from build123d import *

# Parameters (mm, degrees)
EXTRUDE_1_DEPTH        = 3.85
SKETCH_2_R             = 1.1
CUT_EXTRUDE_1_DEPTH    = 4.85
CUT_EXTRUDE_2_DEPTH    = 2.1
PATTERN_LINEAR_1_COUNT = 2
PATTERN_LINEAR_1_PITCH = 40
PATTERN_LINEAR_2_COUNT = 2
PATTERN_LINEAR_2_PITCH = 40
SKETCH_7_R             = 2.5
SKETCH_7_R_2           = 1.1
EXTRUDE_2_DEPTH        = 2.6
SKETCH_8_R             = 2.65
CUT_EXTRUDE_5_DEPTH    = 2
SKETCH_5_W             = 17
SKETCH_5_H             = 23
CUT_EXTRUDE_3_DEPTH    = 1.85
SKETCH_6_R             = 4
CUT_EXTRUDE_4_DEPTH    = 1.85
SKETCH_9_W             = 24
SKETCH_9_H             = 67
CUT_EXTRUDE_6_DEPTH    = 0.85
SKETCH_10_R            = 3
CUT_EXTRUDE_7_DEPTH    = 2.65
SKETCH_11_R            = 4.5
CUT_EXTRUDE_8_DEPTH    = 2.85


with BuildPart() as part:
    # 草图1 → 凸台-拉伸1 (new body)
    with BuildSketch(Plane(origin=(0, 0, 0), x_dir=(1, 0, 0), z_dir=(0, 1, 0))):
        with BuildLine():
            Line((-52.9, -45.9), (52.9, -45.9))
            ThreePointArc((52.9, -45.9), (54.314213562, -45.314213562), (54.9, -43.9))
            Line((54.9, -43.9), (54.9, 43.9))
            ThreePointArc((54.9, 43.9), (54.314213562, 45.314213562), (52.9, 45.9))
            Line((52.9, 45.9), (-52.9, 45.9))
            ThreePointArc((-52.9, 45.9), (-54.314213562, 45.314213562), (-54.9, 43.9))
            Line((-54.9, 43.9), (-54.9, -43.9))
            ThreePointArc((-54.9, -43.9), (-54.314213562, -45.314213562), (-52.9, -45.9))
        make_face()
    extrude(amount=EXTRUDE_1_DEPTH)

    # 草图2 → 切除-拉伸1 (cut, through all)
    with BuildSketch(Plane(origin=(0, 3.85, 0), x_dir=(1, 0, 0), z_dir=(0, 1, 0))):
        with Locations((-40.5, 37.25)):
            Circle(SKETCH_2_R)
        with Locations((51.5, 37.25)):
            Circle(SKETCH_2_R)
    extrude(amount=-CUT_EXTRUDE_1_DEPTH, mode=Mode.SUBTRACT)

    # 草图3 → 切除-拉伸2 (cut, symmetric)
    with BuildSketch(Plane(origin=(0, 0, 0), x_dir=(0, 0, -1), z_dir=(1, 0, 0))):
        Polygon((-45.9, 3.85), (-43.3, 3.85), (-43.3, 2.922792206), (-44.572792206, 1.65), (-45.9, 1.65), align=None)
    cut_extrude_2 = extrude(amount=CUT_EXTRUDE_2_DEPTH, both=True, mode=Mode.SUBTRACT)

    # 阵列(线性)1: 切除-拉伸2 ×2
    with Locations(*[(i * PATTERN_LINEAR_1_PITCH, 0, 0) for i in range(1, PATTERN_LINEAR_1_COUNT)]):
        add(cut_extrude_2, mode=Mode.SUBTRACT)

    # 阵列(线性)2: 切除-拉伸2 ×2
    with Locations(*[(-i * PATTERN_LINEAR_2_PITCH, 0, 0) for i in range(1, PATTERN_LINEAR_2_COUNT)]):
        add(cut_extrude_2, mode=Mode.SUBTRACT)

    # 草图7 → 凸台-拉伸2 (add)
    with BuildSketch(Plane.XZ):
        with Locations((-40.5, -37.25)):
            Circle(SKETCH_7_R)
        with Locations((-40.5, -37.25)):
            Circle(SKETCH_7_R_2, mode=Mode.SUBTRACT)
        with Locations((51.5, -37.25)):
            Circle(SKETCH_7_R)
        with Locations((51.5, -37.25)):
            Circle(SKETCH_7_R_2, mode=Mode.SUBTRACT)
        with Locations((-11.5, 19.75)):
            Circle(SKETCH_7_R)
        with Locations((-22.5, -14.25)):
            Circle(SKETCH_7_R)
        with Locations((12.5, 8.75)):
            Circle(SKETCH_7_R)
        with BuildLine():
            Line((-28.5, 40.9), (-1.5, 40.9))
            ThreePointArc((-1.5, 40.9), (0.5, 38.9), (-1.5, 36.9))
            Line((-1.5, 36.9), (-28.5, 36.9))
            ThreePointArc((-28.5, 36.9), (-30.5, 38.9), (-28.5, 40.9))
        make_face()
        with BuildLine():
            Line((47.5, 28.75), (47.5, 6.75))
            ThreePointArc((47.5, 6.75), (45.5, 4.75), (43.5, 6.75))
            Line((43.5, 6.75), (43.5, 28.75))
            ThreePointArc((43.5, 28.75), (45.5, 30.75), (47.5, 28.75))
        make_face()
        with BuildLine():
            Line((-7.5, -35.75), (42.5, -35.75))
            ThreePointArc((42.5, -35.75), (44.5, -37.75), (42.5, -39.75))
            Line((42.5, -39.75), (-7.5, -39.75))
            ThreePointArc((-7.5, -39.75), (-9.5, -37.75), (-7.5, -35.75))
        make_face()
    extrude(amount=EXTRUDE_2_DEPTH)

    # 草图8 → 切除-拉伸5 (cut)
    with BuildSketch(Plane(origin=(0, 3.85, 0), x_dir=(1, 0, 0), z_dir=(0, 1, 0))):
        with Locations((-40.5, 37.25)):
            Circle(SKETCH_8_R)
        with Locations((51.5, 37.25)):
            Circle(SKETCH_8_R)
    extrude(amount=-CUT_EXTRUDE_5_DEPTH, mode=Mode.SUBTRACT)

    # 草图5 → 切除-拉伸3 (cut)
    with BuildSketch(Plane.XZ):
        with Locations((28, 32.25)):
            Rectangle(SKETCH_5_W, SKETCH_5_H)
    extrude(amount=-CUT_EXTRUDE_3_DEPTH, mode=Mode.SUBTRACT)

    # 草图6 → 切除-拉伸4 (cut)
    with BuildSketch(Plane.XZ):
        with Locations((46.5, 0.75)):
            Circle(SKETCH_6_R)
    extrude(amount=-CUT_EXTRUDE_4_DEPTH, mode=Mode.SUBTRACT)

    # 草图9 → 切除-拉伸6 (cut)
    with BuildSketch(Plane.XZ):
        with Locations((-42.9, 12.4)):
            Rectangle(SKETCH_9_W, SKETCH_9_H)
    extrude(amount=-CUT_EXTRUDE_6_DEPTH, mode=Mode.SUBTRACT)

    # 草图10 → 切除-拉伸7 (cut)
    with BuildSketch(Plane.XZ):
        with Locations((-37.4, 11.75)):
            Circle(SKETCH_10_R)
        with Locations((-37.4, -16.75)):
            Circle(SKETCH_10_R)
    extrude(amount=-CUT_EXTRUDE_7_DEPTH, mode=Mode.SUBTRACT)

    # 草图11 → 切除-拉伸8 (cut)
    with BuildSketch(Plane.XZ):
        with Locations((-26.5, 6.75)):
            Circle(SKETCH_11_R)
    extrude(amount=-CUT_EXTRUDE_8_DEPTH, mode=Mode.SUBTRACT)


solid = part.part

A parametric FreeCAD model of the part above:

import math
import FreeCAD as App
import Part
import Sketcher
from FreeCAD import Vector
Q = App.Units.Quantity

doc = App.newDocument("Part")
body = doc.addObject("PartDesign::Body", "Body")

# Sketch on XZ plane
sketch1 = body.newObject("Sketcher::SketchObject", "Sketch")
sketch1.AttachmentSupport = (doc.getObject("XZ_Plane"), [""])
sketch1.MapMode = "FlatFace"
sketch1.addGeometry([
    Part.LineSegment(Vector(-52.9, 45.9, 0), Vector(52.9, 45.9, 0)),  # 0
    Part.ArcOfCircle(Part.Circle(Vector(52.9, 43.9, 0), Vector(0, 0, 1), 2), math.radians(0), math.radians(90)),  # 1
    Part.LineSegment(Vector(54.9, 43.9, 0), Vector(54.9, -43.9, 0)),  # 2
    Part.ArcOfCircle(Part.Circle(Vector(52.9, -43.9, 0), Vector(0, 0, 1), 2), math.radians(-90), math.radians(0)),  # 3
    Part.LineSegment(Vector(52.9, -45.9, 0), Vector(-52.9, -45.9, 0)),  # 4
    Part.ArcOfCircle(Part.Circle(Vector(-52.9, -43.9, 0), Vector(0, 0, 1), 2), math.radians(-180), math.radians(-90)),  # 5
    Part.LineSegment(Vector(-54.9, -43.9, 0), Vector(-54.9, 43.9, 0)),  # 6
    Part.ArcOfCircle(Part.Circle(Vector(-52.9, 43.9, 0), Vector(0, 0, 1), 2), math.radians(90), math.radians(180)),  # 7
], False)
sketch1.addConstraint([
    Sketcher.Constraint("Tangent", 0, 2, 1, 2),
    Sketcher.Constraint("Tangent", 1, 1, 2, 1),
    Sketcher.Constraint("Tangent", 2, 2, 3, 2),
    Sketcher.Constraint("Tangent", 3, 1, 4, 1),
    Sketcher.Constraint("Tangent", 4, 2, 5, 2),
    Sketcher.Constraint("Tangent", 5, 1, 6, 1),
    Sketcher.Constraint("Tangent", 6, 2, 7, 2),
    Sketcher.Constraint("Tangent", 7, 1, 0, 1),
    Sketcher.Constraint("Horizontal", 0),
    Sketcher.Constraint("Vertical", 2),
    Sketcher.Constraint("Horizontal", 4),
    Sketcher.Constraint("Vertical", 6),
    Sketcher.Constraint("Equal", 1, 3),
    Sketcher.Constraint("Equal", 3, 5),
    Sketcher.Constraint("Equal", 5, 7),
    Sketcher.Constraint("Symmetric", 1, 3, 5, 3, -1, 1),
    Sketcher.Constraint("Radius", 1, Q("2 mm")),
    Sketcher.Constraint("DistanceX", 0, 1, 0, 2, Q("105.8 mm")),
    Sketcher.Constraint("DistanceY", 2, 2, 2, 1, Q("87.8 mm")),
])
pad1 = body.newObject("PartDesign::Pad", "Pad")
pad1.Profile = sketch1
pad1.Length = 3.85
pad1.Reversed = True

# Sketch on XZ plane
sketch2 = body.newObject("Sketcher::SketchObject", "Sketch001")
sketch2.AttachmentSupport = (doc.getObject("XZ_Plane"), [""])
sketch2.MapMode = "FlatFace"
sketch2.AttachmentOffset = App.Placement(Vector(0, 0, -3.85), App.Rotation())
sketch2.addGeometry([
    Part.Circle(Vector(-40.5, -37.2, 0), Vector(0, 0, 1), 1.1),
    Part.Circle(Vector(51.5, -37.2, 0), Vector(0, 0, 1), 1.1),
], False)
sketch2.addConstraint([
    Sketcher.Constraint("Equal", 0, 1),
    Sketcher.Constraint("Horizontal", 0, 3, 1, 3),
    Sketcher.Constraint("Diameter", 0, Q("2.2 mm")),
    Sketcher.Constraint("DistanceX", 0, 3, 1, 3, Q("92 mm")),
    Sketcher.Constraint("DistanceX", 0, 3, -1, 1, Q("40.5 mm")),
    Sketcher.Constraint("DistanceY", 0, 3, -1, 1, Q("37.25 mm")),
])
pocket1 = body.newObject("PartDesign::Pocket", "Pocket")
pocket1.Profile = sketch2
pocket1.Type = "ThroughAll"
pocket1.Reversed = True

# Sketch on YZ plane
sketch3 = body.newObject("Sketcher::SketchObject", "Sketch002")
sketch3.AttachmentSupport = (doc.getObject("YZ_Plane"), [""])
sketch3.MapMode = "FlatFace"
sketch3.addGeometry([
    Part.LineSegment(Vector(3.9, 43.3, 0), Vector(3.9, 45.9, 0)),  # 0
    Part.LineSegment(Vector(3.9, 45.9, 0), Vector(1.6, 45.9, 0)),  # 1
    Part.LineSegment(Vector(1.6, 45.9, 0), Vector(1.6, 44.6, 0)),  # 2
    Part.LineSegment(Vector(1.6, 44.6, 0), Vector(2.9, 43.3, 0)),  # 3
    Part.LineSegment(Vector(2.9, 43.3, 0), Vector(3.9, 43.3, 0)),  # 4
], False)
sketch3.addConstraint([
    Sketcher.Constraint("Coincident", 0, 2, 1, 1),
    Sketcher.Constraint("Coincident", 1, 2, 2, 1),
    Sketcher.Constraint("Coincident", 2, 2, 3, 1),
    Sketcher.Constraint("Coincident", 3, 2, 4, 1),
    Sketcher.Constraint("Coincident", 4, 2, 0, 1),
    Sketcher.Constraint("Vertical", 0),
    Sketcher.Constraint("Horizontal", 1),
    Sketcher.Constraint("Vertical", 2),
    Sketcher.Constraint("Horizontal", 4),
    Sketcher.Constraint("Angle", 3, Q("-45 deg")),
    Sketcher.Constraint("DistanceX", 1, 2, 1, 1, Q("2.2 mm")),
    Sketcher.Constraint("DistanceY", 0, 1, 0, 2, Q("2.6 mm")),
    Sketcher.Constraint("Distance", 3, Q("1.8 mm")),
    Sketcher.Constraint("DistanceY", -1, 1, 0, 2, Q("45.9 mm")),
    Sketcher.Constraint("DistanceX", -1, 1, 0, 2, Q("3.85 mm")),
])
pocket2 = body.newObject("PartDesign::Pocket", "Pocket001")
pocket2.Profile = sketch3
pocket2.Length = 4.2
pocket2.Midplane = True
doc.recompute()

linearpattern = body.newObject("PartDesign::LinearPattern", "LinearPattern")
linearpattern.Originals = [pocket2]
linearpattern.Direction = (doc.getObject("X_Axis"), [""])
linearpattern.Mode = "offset"
linearpattern.Offset = 40
linearpattern.Occurrences = 2
body.Tip = linearpattern
doc.recompute()

linearpattern2 = body.newObject("PartDesign::LinearPattern", "LinearPattern001")
linearpattern2.Originals = [pocket2]
linearpattern2.Direction = (doc.getObject("X_Axis"), [""])
linearpattern2.Mode = "offset"
linearpattern2.Offset = 40
linearpattern2.Occurrences = 2
linearpattern2.Reversed = True
body.Tip = linearpattern2

# Sketch on XZ plane
sketch4 = body.newObject("Sketcher::SketchObject", "Sketch003")
sketch4.AttachmentSupport = (doc.getObject("XZ_Plane"), [""])
sketch4.MapMode = "FlatFace"
sketch4.addGeometry([
    Part.Circle(Vector(-40.5, -37.2, 0), Vector(0, 0, 1), 2.5),  # 0
    Part.Circle(Vector(-40.5, -37.2, 0), Vector(0, 0, 1), 1.1),  # 1
    Part.Circle(Vector(51.5, -37.2, 0), Vector(0, 0, 1), 2.5),  # 2
    Part.Circle(Vector(51.5, -37.2, 0), Vector(0, 0, 1), 1.1),  # 3
    Part.Circle(Vector(-11.5, 19.8, 0), Vector(0, 0, 1), 2.5),  # 4
    Part.Circle(Vector(-22.5, -14.2, 0), Vector(0, 0, 1), 2.5),  # 5
    Part.Circle(Vector(12.5, 8.8, 0), Vector(0, 0, 1), 2.5),  # 6
    Part.LineSegment(Vector(-1.5, 40.9, 0), Vector(-28.5, 40.9, 0)),  # 7
    Part.ArcOfCircle(Part.Circle(Vector(-28.5, 38.9, 0), Vector(0, 0, 1), 2), math.radians(90), math.radians(270)),  # 8
    Part.LineSegment(Vector(-28.5, 36.9, 0), Vector(-1.5, 36.9, 0)),  # 9
    Part.ArcOfCircle(Part.Circle(Vector(-1.5, 38.9, 0), Vector(0, 0, 1), 2), math.radians(-90), math.radians(90)),  # 10
    Part.LineSegment(Vector(47.5, 6.8, 0), Vector(47.5, 28.8, 0)),  # 11
    Part.ArcOfCircle(Part.Circle(Vector(45.5, 28.8, 0), Vector(0, 0, 1), 2), math.radians(0), math.radians(180)),  # 12
    Part.LineSegment(Vector(43.5, 28.8, 0), Vector(43.5, 6.8, 0)),  # 13
    Part.ArcOfCircle(Part.Circle(Vector(45.5, 6.8, 0), Vector(0, 0, 1), 2), math.radians(180), math.radians(360)),  # 14
    Part.LineSegment(Vector(42.5, -35.8, 0), Vector(-7.5, -35.8, 0)),  # 15
    Part.ArcOfCircle(Part.Circle(Vector(-7.5, -37.8, 0), Vector(0, 0, 1), 2), math.radians(90), math.radians(270)),  # 16
    Part.LineSegment(Vector(-7.5, -39.8, 0), Vector(42.5, -39.8, 0)),  # 17
    Part.ArcOfCircle(Part.Circle(Vector(42.5, -37.8, 0), Vector(0, 0, 1), 2), math.radians(-90), math.radians(90)),  # 18
], False)
sketch4.addConstraint([
    Sketcher.Constraint("Tangent", 7, 2, 8, 1),
    Sketcher.Constraint("Tangent", 8, 2, 9, 1),
    Sketcher.Constraint("Tangent", 9, 2, 10, 1),
    Sketcher.Constraint("Tangent", 10, 2, 7, 1),
    Sketcher.Constraint("Tangent", 11, 2, 12, 1),
    Sketcher.Constraint("Tangent", 12, 2, 13, 1),
    Sketcher.Constraint("Tangent", 13, 2, 14, 1),
    Sketcher.Constraint("Tangent", 14, 2, 11, 1),
    Sketcher.Constraint("Tangent", 15, 2, 16, 1),
    Sketcher.Constraint("Tangent", 16, 2, 17, 1),
    Sketcher.Constraint("Tangent", 17, 2, 18, 1),
    Sketcher.Constraint("Tangent", 18, 2, 15, 1),
    Sketcher.Constraint("Horizontal", 7),
    Sketcher.Constraint("Horizontal", 9),
    Sketcher.Constraint("Vertical", 11),
    Sketcher.Constraint("Vertical", 13),
    Sketcher.Constraint("Horizontal", 15),
    Sketcher.Constraint("Horizontal", 17),
    Sketcher.Constraint("Coincident", 1, 3, 0, 3),
    Sketcher.Constraint("Coincident", 3, 3, 2, 3),
    Sketcher.Constraint("Equal", 0, 2),
    Sketcher.Constraint("Equal", 1, 3),
    Sketcher.Constraint("Equal", 2, 4),
    Sketcher.Constraint("Equal", 4, 5),
    Sketcher.Constraint("Equal", 5, 6),
    Sketcher.Constraint("Equal", 10, 12),
    Sketcher.Constraint("Equal", 14, 16),
    Sketcher.Constraint("Horizontal", 1, 3, 2, 3),
    Sketcher.Constraint("Diameter", 0, Q("5 mm")),
    Sketcher.Constraint("Radius", 8, Q("2 mm")),
    Sketcher.Constraint("Diameter", 1, Q("2.2 mm")),
    Sketcher.Constraint("DistanceX", 7, 2, 7, 1, Q("27 mm")),
    Sketcher.Constraint("DistanceX", 15, 2, 15, 1, Q("50 mm")),
    Sketcher.Constraint("DistanceY", 11, 1, 11, 2, Q("22 mm")),
    Sketcher.Constraint("DistanceX", 0, 3, 2, 3, Q("92 mm")),
    Sketcher.Constraint("DistanceX", 0, 3, 4, 3, Q("29 mm")),
    Sketcher.Constraint("DistanceY", 0, 3, 4, 3, Q("57 mm")),
    Sketcher.Constraint("DistanceX", 0, 3, 5, 3, Q("18 mm")),
    Sketcher.Constraint("DistanceY", 0, 3, 5, 3, Q("23 mm")),
    Sketcher.Constraint("DistanceX", 4, 3, 6, 3, Q("24 mm")),
    Sketcher.Constraint("DistanceY", 6, 3, 4, 3, Q("11 mm")),
    Sketcher.Constraint("DistanceX", 8, 3, 4, 3, Q("17 mm")),
    Sketcher.Constraint("DistanceX", 6, 3, 12, 3, Q("33 mm")),
    Sketcher.Constraint("DistanceY", 6, 3, 12, 3, Q("20 mm")),
    Sketcher.Constraint("DistanceX", 5, 3, 16, 3, Q("15 mm")),
    Sketcher.Constraint("DistanceX", 0, 3, -1, 1, Q("40.5 mm")),
    Sketcher.Constraint("DistanceY", -1, 1, 8, 3, Q("38.9 mm")),
    Sketcher.Constraint("DistanceY", 16, 3, 5, 3, Q("23.5 mm")),
    Sketcher.Constraint("DistanceY", 0, 3, -1, 1, Q("37.25 mm")),
])
pad2 = body.newObject("PartDesign::Pad", "Pad001")
pad2.Profile = sketch4
pad2.Length = 2.6

# Sketch on XZ plane
sketch5 = body.newObject("Sketcher::SketchObject", "Sketch004")
sketch5.AttachmentSupport = (doc.getObject("XZ_Plane"), [""])
sketch5.MapMode = "FlatFace"
sketch5.AttachmentOffset = App.Placement(Vector(0, 0, -3.85), App.Rotation())
sketch5.addGeometry([
    Part.Circle(Vector(-40.5, -37.2, 0), Vector(0, 0, 1), 2.6),
    Part.Circle(Vector(51.5, -37.2, 0), Vector(0, 0, 1), 2.6),
], False)
sketch5.addConstraint([
    Sketcher.Constraint("Equal", 0, 1),
    Sketcher.Constraint("Horizontal", 0, 3, 1, 3),
    Sketcher.Constraint("Diameter", 0, Q("5.3 mm")),
    Sketcher.Constraint("DistanceX", 0, 3, 1, 3, Q("92 mm")),
    Sketcher.Constraint("DistanceX", 0, 3, -1, 1, Q("40.5 mm")),
    Sketcher.Constraint("DistanceY", 0, 3, -1, 1, Q("37.25 mm")),
])
pocket3 = body.newObject("PartDesign::Pocket", "Pocket002")
pocket3.Profile = sketch5
pocket3.Length = 2
pocket3.Reversed = True

# Sketch on XZ plane
sketch6 = body.newObject("Sketcher::SketchObject", "Sketch005")
sketch6.AttachmentSupport = (doc.getObject("XZ_Plane"), [""])
sketch6.MapMode = "FlatFace"
sketch6.addGeometry([
    Part.LineSegment(Vector(20, 44, 0), Vector(20, 21, 0)),
    Part.LineSegment(Vector(20, 21, 0), Vector(36, 21, 0)),
    Part.LineSegment(Vector(36, 21, 0), Vector(36, 44, 0)),
    Part.LineSegment(Vector(36, 44, 0), Vector(20, 44, 0)),
], False)
sketch6.addConstraint([
    Sketcher.Constraint("Coincident", 0, 2, 1, 1),
    Sketcher.Constraint("Coincident", 1, 2, 2, 1),
    Sketcher.Constraint("Coincident", 2, 2, 3, 1),
    Sketcher.Constraint("Coincident", 3, 2, 0, 1),
    Sketcher.Constraint("Vertical", 0),
    Sketcher.Constraint("Horizontal", 1),
    Sketcher.Constraint("Vertical", 2),
    Sketcher.Constraint("Horizontal", 3),
    Sketcher.Constraint("DistanceX", 1, 1, 1, 2, Q("17 mm")),
    Sketcher.Constraint("DistanceY", 0, 2, 0, 1, Q("23 mm")),
    Sketcher.Constraint("DistanceX", -1, 1, 0, 2, Q("19.5 mm")),
    Sketcher.Constraint("DistanceY", -1, 1, 0, 2, Q("20.75 mm")),
])
pocket4 = body.newObject("PartDesign::Pocket", "Pocket003")
pocket4.Profile = sketch6
pocket4.Length = 1.85

# Sketch on XZ plane
sketch7 = body.newObject("Sketcher::SketchObject", "Sketch006")
sketch7.AttachmentSupport = (doc.getObject("XZ_Plane"), [""])
sketch7.MapMode = "FlatFace"
sketch7.addGeometry(Part.Circle(Vector(46.5, 0.8, 0), Vector(0, 0, 1), 4), False)
sketch7.addConstraint([
    Sketcher.Constraint("Diameter", 0, Q("8 mm")),
    Sketcher.Constraint("DistanceX", -1, 1, 0, 3, Q("46.5 mm")),
    Sketcher.Constraint("DistanceY", -1, 1, 0, 3, Q("0.75 mm")),
])
pocket5 = body.newObject("PartDesign::Pocket", "Pocket004")
pocket5.Profile = sketch7
pocket5.Length = 1.85

# Sketch on XZ plane
sketch8 = body.newObject("Sketcher::SketchObject", "Sketch007")
sketch8.AttachmentSupport = (doc.getObject("XZ_Plane"), [""])
sketch8.MapMode = "FlatFace"
sketch8.addGeometry([
    Part.LineSegment(Vector(-55, 46, 0), Vector(-55, -21, 0)),
    Part.LineSegment(Vector(-55, -21, 0), Vector(-31, -21, 0)),
    Part.LineSegment(Vector(-31, -21, 0), Vector(-31, 46, 0)),
    Part.LineSegment(Vector(-31, 46, 0), Vector(-55, 46, 0)),
], False)
sketch8.addConstraint([
    Sketcher.Constraint("Coincident", 0, 2, 1, 1),
    Sketcher.Constraint("Coincident", 1, 2, 2, 1),
    Sketcher.Constraint("Coincident", 2, 2, 3, 1),
    Sketcher.Constraint("Coincident", 3, 2, 0, 1),
    Sketcher.Constraint("Vertical", 0),
    Sketcher.Constraint("Horizontal", 1),
    Sketcher.Constraint("Vertical", 2),
    Sketcher.Constraint("Horizontal", 3),
    Sketcher.Constraint("DistanceX", 1, 1, 1, 2, Q("24 mm")),
    Sketcher.Constraint("DistanceY", 0, 2, 0, 1, Q("67 mm")),
    Sketcher.Constraint("DistanceX", 0, 2, -1, 1, Q("54.9 mm")),
    Sketcher.Constraint("DistanceY", 0, 2, -1, 1, Q("21.1 mm")),
])
pocket6 = body.newObject("PartDesign::Pocket", "Pocket005")
pocket6.Profile = sketch8
pocket6.Length = 0.85

# Sketch on XZ plane
sketch9 = body.newObject("Sketcher::SketchObject", "Sketch008")
sketch9.AttachmentSupport = (doc.getObject("XZ_Plane"), [""])
sketch9.MapMode = "FlatFace"
sketch9.addGeometry([
    Part.Circle(Vector(-37.4, 11.8, 0), Vector(0, 0, 1), 3),
    Part.Circle(Vector(-37.4, -16.8, 0), Vector(0, 0, 1), 3),
], False)
sketch9.addConstraint([
    Sketcher.Constraint("Equal", 0, 1),
    Sketcher.Constraint("Vertical", 0, 3, 1, 3),
    Sketcher.Constraint("Diameter", 0, Q("6 mm")),
    Sketcher.Constraint("DistanceX", 0, 3, -1, 1, Q("37.4 mm")),
    Sketcher.Constraint("DistanceY", 1, 3, 0, 3, Q("28.5 mm")),
    Sketcher.Constraint("DistanceY", -1, 1, 0, 3, Q("11.75 mm")),
])
pocket7 = body.newObject("PartDesign::Pocket", "Pocket006")
pocket7.Profile = sketch9
pocket7.Length = 2.65

# Sketch on XZ plane
sketch10 = body.newObject("Sketcher::SketchObject", "Sketch009")
sketch10.AttachmentSupport = (doc.getObject("XZ_Plane"), [""])
sketch10.MapMode = "FlatFace"
sketch10.addGeometry(Part.Circle(Vector(-26.5, 6.8, 0), Vector(0, 0, 1), 4.5), False)
sketch10.addConstraint([
    Sketcher.Constraint("Diameter", 0, Q("9 mm")),
    Sketcher.Constraint("DistanceX", 0, 3, -1, 1, Q("26.5 mm")),
    Sketcher.Constraint("DistanceY", -1, 1, 0, 3, Q("6.75 mm")),
])
pocket8 = body.newObject("PartDesign::Pocket", "Pocket007")
pocket8.Profile = sketch10
pocket8.Length = 2.85

doc.recompute()
